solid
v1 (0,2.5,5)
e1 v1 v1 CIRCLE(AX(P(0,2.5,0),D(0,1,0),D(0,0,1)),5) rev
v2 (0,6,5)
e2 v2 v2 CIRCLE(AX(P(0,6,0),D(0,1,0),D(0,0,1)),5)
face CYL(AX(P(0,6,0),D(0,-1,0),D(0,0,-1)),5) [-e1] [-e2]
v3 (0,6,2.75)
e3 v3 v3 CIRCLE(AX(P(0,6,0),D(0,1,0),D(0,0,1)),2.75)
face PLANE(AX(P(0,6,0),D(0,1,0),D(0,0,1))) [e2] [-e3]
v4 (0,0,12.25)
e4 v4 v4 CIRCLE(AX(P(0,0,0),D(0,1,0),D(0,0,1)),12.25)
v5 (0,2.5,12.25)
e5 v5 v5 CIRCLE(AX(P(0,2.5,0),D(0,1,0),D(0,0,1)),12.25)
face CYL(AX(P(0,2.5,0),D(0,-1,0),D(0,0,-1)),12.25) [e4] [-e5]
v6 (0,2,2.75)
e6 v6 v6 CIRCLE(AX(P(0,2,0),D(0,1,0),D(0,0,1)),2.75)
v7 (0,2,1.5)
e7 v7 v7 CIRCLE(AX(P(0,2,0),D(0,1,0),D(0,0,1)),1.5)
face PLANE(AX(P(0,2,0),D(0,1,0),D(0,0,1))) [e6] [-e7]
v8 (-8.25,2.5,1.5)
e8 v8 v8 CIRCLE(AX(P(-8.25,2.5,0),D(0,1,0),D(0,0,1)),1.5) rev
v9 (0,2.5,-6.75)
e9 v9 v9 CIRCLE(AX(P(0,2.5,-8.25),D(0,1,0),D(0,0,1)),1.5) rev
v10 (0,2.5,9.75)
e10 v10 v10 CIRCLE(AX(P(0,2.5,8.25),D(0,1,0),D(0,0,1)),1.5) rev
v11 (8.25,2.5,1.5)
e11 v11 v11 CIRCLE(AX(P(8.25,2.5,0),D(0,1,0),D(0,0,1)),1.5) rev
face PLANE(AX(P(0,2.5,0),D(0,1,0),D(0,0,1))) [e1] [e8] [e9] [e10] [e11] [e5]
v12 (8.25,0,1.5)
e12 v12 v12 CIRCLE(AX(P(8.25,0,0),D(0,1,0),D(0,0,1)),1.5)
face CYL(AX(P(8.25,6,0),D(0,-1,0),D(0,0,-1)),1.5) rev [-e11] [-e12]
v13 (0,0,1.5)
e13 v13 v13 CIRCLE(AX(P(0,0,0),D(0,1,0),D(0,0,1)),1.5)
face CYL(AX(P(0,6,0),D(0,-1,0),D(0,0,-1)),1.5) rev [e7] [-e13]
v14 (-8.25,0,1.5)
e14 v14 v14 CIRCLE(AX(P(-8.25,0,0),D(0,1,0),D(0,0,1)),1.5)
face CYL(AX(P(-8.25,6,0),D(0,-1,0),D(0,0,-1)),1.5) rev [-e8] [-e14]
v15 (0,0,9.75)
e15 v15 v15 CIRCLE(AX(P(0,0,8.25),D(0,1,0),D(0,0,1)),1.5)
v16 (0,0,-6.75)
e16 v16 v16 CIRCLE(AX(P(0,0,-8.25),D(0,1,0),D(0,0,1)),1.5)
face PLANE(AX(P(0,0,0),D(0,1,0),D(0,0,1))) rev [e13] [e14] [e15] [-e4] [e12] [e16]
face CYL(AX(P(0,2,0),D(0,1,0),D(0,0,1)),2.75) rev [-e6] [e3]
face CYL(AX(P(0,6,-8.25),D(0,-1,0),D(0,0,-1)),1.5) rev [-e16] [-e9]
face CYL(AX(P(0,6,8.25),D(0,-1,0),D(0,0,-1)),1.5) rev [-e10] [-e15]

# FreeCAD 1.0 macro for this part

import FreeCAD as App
import Part
import Sketcher
Q = App.Units.Quantity

doc = App.newDocument("Part")
params = doc.addObject("Spreadsheet::Sheet", "Params")
for row, (alias, value) in enumerate([
    ("sketch1_diameter", "24.5 mm"),
    ("pad1_length", "2.5 mm"),
    ("sketch2_diameter", "10 mm"),
    ("pad2_length", "6 mm"),
    ("sketch3_diameter", "3 mm"),
    ("pocket1_length", "6 mm"),
    ("sketch4_diameter", "5.5 mm"),
    ("pocket2_length", "4 mm"),
], start=1):
    params.set(f"A{row}", alias)
    params.set(f"B{row}", "=" + value)
    params.setAlias(f"B{row}", alias)

body = doc.addObject("PartDesign::Body", "Body")

# Sketch on XZ plane
sketch1 = body.newObject("Sketcher::SketchObject", "Sketch")
sketch1.AttachmentSupport = (doc.getObject("XZ_Plane"), [""])
sketch1.MapMode = "FlatFace"
sketch1.addGeometry(Part.Circle(App.Vector(0, 0, 0), App.Vector(0, 0, 1), 12), False)
sketch1.addConstraint([
    Sketcher.Constraint("Coincident", 0, 3, -1, 1),
    Sketcher.Constraint("Diameter", 0, Q("24.5 mm")),
])
sketch1.setExpression("Constraints[1]", "Params.sketch1_diameter")
pad1 = body.newObject("PartDesign::Pad", "Pad")
pad1.Profile = sketch1
pad1.setExpression("Length", "Params.pad1_length")
pad1.Reversed = True

# Sketch on XZ plane
sketch2 = body.newObject("Sketcher::SketchObject", "Sketch001")
sketch2.AttachmentSupport = (doc.getObject("XZ_Plane"), [""])
sketch2.MapMode = "FlatFace"
sketch2.addGeometry(Part.Circle(App.Vector(0, 0, 0), App.Vector(0, 0, 1), 5), False)
sketch2.addConstraint([
    Sketcher.Constraint("Coincident", 0, 3, -1, 1),
    Sketcher.Constraint("Diameter", 0, Q("10 mm")),
])
sketch2.setExpression("Constraints[1]", "Params.sketch2_diameter")
pad2 = body.newObject("PartDesign::Pad", "Pad001")
pad2.Profile = sketch2
pad2.setExpression("Length", "Params.pad2_length")
pad2.Reversed = True

# Sketch on XZ plane
sketch3 = body.newObject("Sketcher::SketchObject", "Sketch002")
sketch3.AttachmentSupport = (doc.getObject("XZ_Plane"), [""])
sketch3.MapMode = "FlatFace"
sketch3.addGeometry([
    Part.Circle(App.Vector(0, 0, 0), App.Vector(0, 0, 1), 1.5),  # 0
    Part.Circle(App.Vector(-8.2, 0, 0), App.Vector(0, 0, 1), 1.5),  # 1
    Part.Circle(App.Vector(0, -8.2, 0), App.Vector(0, 0, 1), 1.5),  # 2
    Part.Circle(App.Vector(8.2, 0, 0), App.Vector(0, 0, 1), 1.5),  # 3
    Part.Circle(App.Vector(0, 8.2, 0), App.Vector(0, 0, 1), 1.5),  # 4
], False)
sketch3.addConstraint([
    Sketcher.Constraint("Coincident", 0, 3, -1, 1),
    Sketcher.Constraint("Equal", 0, 1),
    Sketcher.Constraint("Equal", 1, 2),
    Sketcher.Constraint("Equal", 2, 3),
    Sketcher.Constraint("Equal", 3, 4),
    Sketcher.Constraint("Symmetric", 1, 3, 3, 3, -1, 1),
    Sketcher.Constraint("Symmetric", 2, 3, 4, 3, -1, 1),
    Sketcher.Constraint("PointOnObject", 1, 3, -1),
    Sketcher.Constraint("PointOnObject", 2, 3, -2),
    Sketcher.Constraint("Diameter", 0, Q("3 mm")),
    Sketcher.Constraint("DistanceX", 1, 3, 3, 3, Q("16.5 mm")),
    Sketcher.Constraint("DistanceY", 2, 3, 4, 3, Q("16.5 mm")),
])
sketch3.setExpression("Constraints[9]", "Params.sketch3_diameter")
pocket1 = body.newObject("PartDesign::Pocket", "Pocket")
pocket1.Profile = sketch3
pocket1.setExpression("Length", "Params.pocket1_length")

# Sketch on XZ plane
sketch4 = body.newObject("Sketcher::SketchObject", "Sketch003")
sketch4.AttachmentSupport = (doc.getObject("XZ_Plane"), [""])
sketch4.MapMode = "FlatFace"
sketch4.AttachmentOffset = App.Placement(App.Vector(0, 0, -6), App.Rotation())
sketch4.addGeometry(Part.Circle(App.Vector(0, 0, 0), App.Vector(0, 0, 1), 2.8), False)
sketch4.addConstraint([
    Sketcher.Constraint("Coincident", 0, 3, -1, 1),
    Sketcher.Constraint("Diameter", 0, Q("5.5 mm")),
])
sketch4.setExpression("Constraints[1]", "Params.sketch4_diameter")
pocket2 = body.newObject("PartDesign::Pocket", "Pocket001")
pocket2.Profile = sketch4
pocket2.setExpression("Length", "Params.pocket2_length")
pocket2.Reversed = True

doc.recompute()
